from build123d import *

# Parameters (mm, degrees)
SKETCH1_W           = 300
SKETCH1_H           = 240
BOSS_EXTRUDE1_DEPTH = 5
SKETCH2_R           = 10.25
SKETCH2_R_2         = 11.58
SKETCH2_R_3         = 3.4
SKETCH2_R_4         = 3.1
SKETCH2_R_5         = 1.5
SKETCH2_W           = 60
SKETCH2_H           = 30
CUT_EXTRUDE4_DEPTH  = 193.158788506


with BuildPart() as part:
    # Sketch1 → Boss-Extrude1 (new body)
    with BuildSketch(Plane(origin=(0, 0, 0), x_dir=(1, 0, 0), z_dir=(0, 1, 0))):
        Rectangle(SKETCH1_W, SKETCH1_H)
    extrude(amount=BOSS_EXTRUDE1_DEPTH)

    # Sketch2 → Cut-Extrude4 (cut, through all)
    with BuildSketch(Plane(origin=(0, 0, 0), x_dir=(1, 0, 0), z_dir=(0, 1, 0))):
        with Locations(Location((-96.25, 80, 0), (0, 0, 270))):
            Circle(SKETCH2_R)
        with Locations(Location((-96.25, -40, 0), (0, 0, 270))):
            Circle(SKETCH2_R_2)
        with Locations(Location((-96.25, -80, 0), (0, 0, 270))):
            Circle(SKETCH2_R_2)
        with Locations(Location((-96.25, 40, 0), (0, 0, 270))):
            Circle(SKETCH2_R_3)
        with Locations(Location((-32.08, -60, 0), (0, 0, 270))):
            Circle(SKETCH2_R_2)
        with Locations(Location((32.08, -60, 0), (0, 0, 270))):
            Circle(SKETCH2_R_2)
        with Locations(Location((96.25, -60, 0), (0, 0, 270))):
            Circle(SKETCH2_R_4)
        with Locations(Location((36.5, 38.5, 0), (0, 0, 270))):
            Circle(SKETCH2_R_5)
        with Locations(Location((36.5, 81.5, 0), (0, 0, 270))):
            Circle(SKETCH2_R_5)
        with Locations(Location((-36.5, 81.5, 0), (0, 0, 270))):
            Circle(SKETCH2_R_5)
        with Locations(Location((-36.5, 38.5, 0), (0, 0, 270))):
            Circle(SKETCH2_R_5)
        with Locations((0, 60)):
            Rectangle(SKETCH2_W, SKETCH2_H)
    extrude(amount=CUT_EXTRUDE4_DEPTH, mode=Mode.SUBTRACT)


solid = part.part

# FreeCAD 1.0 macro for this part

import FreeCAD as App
import Part
import Sketcher

V = App.Vector

doc = App.newDocument("Part")
params = doc.addObject("Spreadsheet::Sheet", "Params")
for row, (alias, value) in enumerate([
    ("sketch1_width", "300 mm"),
    ("sketch1_height", "240 mm"),
    ("pad1_length", "5 mm"),
    ("sketch2_diameter", "3 mm"),
    ("sketch2_diameter2", "20.5 mm"),
    ("sketch2_diameter3", "6.8 mm"),
    ("sketch2_diameter4", "6.2 mm"),
    ("sketch2_diameter5", "23.16 mm"),
], start=1):
    params.set(f"A{row}", alias)
    params.set(f"B{row}", "=" + value)
    params.setAlias(f"B{row}", alias)

body = doc.addObject("PartDesign::Body", "Body")

sketch1 = body.newObject("Sketcher::SketchObject", "Sketch")
sketch1.AttachmentSupport = (doc.getObject("XZ_Plane"), [""])
sketch1.MapMode = "FlatFace"
sketch1.addGeometry([
    Part.LineSegment(V(-150, -120, 0), V(-150, 120, 0)),
    Part.LineSegment(V(-150, 120, 0), V(150, 120, 0)),
    Part.LineSegment(V(150, 120, 0), V(150, -120, 0)),
    Part.LineSegment(V(150, -120, 0), V(-150, -120, 0)),
], False)
sketch1.addConstraint([
    Sketcher.Constraint("Coincident", 0, 2, 1, 1),
    Sketcher.Constraint("Coincident", 1, 2, 2, 1),
    Sketcher.Constraint("Coincident", 2, 2, 3, 1),
    Sketcher.Constraint("Coincident", 3, 2, 0, 1),
    Sketcher.Constraint("Vertical", 0),
    Sketcher.Constraint("Horizontal", 1),
    Sketcher.Constraint("Vertical", 2),
    Sketcher.Constraint("Horizontal", 3),
    Sketcher.Constraint("Symmetric", 0, 2, 2, 2, -1, 1),
    Sketcher.Constraint("DistanceX", 1, 1, 1, 2, 300.0),
    Sketcher.Constraint("DistanceY", 0, 1, 0, 2, 240.0),
])
sketch1.setExpression("Constraints[9]", "Params.sketch1_width")
sketch1.setExpression("Constraints[10]", "Params.sketch1_height")
pad1 = body.newObject("PartDesign::Pad", "Pad")
pad1.Profile = sketch1
pad1.setExpression("Length", "Params.pad1_length")
pad1.Reversed = True

sketch2 = body.newObject("Sketcher::SketchObject", "Sketch001")
sketch2.AttachmentSupport = (doc.getObject("XZ_Plane"), [""])
sketch2.MapMode = "FlatFace"
sketch2.addGeometry([
    Part.Circle(V(-96.2, -80, 0), V(0, 0, 1), 10.2),
    Part.Circle(V(-96.2, 40, 0), V(0, 0, 1), 11.6),
    Part.Circle(V(-96.2, 80, 0), V(0, 0, 1), 11.6),
    Part.Circle(V(-96.2, -40, 0), V(0, 0, 1), 3.4),
    Part.Circle(V(-32.1, 60, 0), V(0, 0, 1), 11.6),
    Part.Circle(V(32.1, 60, 0), V(0, 0, 1), 11.6),
    Part.Circle(V(96.2, 60, 0), V(0, 0, 1), 3.1),
    Part.Circle(V(36.5, -38.5, 0), V(0, 0, 1), 1.5),
    Part.Circle(V(36.5, -81.5, 0), V(0, 0, 1), 1.5),
    Part.Circle(V(-36.5, -81.5, 0), V(0, 0, 1), 1.5),
    Part.Circle(V(-36.5, -38.5, 0), V(0, 0, 1), 1.5),
    Part.LineSegment(V(-30, -75, 0), V(-30, -45, 0)),
    Part.LineSegment(V(-30, -45, 0), V(30, -45, 0)),
    Part.LineSegment(V(30, -45, 0), V(30, -75, 0)),
    Part.LineSegment(V(30, -75, 0), V(-30, -75, 0)),
], False)
sketch2.addConstraint([
    Sketcher.Constraint("Coincident", 11, 2, 12, 1),
    Sketcher.Constraint("Coincident", 12, 2, 13, 1),
    Sketcher.Constraint("Coincident", 13, 2, 14, 1),
    Sketcher.Constraint("Coincident", 14, 2, 11, 1),
    Sketcher.Constraint("Vertical", 11),
    Sketcher.Constraint("Horizontal", 12),
    Sketcher.Constraint("Vertical", 13),
    Sketcher.Constraint("Horizontal", 14),
    Sketcher.Constraint("Equal", 1, 2),
    Sketcher.Constraint("Equal", 2, 4),
    Sketcher.Constraint("Equal", 4, 5),
    Sketcher.Constraint("Equal", 7, 8),
    Sketcher.Constraint("Equal", 8, 9),
    Sketcher.Constraint("Equal", 9, 10),
    Sketcher.Constraint("Symmetric", 4, 3, 5, 3, -2),
    Sketcher.Constraint("Symmetric", 8, 3, 9, 3, -2),
    Sketcher.Constraint("Symmetric", 7, 3, 10, 3, -2),
    Sketcher.Constraint("Symmetric", 0, 3, 2, 3, -1),
    Sketcher.Constraint("Symmetric", 1, 3, 3, 3, -1),
    Sketcher.Constraint("Horizontal", 5, 3, 6, 3),
    Sketcher.Constraint("Vertical", 0, 3, 1, 3),
    Sketcher.Constraint("Vertical", 7, 3, 8, 3),
    Sketcher.Constraint("Diameter", 7, 3.0),
    Sketcher.Constraint("Diameter", 0, 20.5),
    Sketcher.Constraint("Diameter", 3, 6.8),
    Sketcher.Constraint("Diameter", 6, 6.2),
    Sketcher.Constraint("Diameter", 1, 23.16),
    Sketcher.Constraint("DistanceX", 12, 1, 12, 2, 60.0),
    Sketcher.Constraint("DistanceY", 11, 1, 11, 2, 30.0),
    Sketcher.Constraint("DistanceY", 0, 3, -1, 1, 80.0),
    Sketcher.Constraint("DistanceY", -1, 1, 1, 3, 40.0),
    Sketcher.Constraint("DistanceY", -1, 1, 4, 3, 60.0),
    Sketcher.Constraint("DistanceX", 11, 2, -1, 1, 30.0),
    Sketcher.Constraint("DistanceY", 11, 2, -1, 1, 45.0),
    Sketcher.Constraint("DistanceY", 8, 3, 7, 3, 43.0),
    Sketcher.Constraint("DistanceX", 9, 3, 8, 3, 73.0),
    Sketcher.Constraint("DistanceY", 7, 3, -1, 1, 38.5),
    Sketcher.Constraint("DistanceX", 1, 3, 6, 3, 192.5),
    Sketcher.Constraint("DistanceX", 0, 3, -1, 1, 96.25),
    Sketcher.Constraint("DistanceX", 4, 3, -1, 1, 32.08),
])
sketch2.setExpression("Constraints[22]", "Params.sketch2_diameter")
sketch2.setExpression("Constraints[23]", "Params.sketch2_diameter2")
sketch2.setExpression("Constraints[24]", "Params.sketch2_diameter3")
sketch2.setExpression("Constraints[25]", "Params.sketch2_diameter4")
sketch2.setExpression("Constraints[26]", "Params.sketch2_diameter5")
pocket1 = body.newObject("PartDesign::Pocket", "Pocket")
pocket1.Profile = sketch2
pocket1.Type = "ThroughAll"

doc.recompute()
